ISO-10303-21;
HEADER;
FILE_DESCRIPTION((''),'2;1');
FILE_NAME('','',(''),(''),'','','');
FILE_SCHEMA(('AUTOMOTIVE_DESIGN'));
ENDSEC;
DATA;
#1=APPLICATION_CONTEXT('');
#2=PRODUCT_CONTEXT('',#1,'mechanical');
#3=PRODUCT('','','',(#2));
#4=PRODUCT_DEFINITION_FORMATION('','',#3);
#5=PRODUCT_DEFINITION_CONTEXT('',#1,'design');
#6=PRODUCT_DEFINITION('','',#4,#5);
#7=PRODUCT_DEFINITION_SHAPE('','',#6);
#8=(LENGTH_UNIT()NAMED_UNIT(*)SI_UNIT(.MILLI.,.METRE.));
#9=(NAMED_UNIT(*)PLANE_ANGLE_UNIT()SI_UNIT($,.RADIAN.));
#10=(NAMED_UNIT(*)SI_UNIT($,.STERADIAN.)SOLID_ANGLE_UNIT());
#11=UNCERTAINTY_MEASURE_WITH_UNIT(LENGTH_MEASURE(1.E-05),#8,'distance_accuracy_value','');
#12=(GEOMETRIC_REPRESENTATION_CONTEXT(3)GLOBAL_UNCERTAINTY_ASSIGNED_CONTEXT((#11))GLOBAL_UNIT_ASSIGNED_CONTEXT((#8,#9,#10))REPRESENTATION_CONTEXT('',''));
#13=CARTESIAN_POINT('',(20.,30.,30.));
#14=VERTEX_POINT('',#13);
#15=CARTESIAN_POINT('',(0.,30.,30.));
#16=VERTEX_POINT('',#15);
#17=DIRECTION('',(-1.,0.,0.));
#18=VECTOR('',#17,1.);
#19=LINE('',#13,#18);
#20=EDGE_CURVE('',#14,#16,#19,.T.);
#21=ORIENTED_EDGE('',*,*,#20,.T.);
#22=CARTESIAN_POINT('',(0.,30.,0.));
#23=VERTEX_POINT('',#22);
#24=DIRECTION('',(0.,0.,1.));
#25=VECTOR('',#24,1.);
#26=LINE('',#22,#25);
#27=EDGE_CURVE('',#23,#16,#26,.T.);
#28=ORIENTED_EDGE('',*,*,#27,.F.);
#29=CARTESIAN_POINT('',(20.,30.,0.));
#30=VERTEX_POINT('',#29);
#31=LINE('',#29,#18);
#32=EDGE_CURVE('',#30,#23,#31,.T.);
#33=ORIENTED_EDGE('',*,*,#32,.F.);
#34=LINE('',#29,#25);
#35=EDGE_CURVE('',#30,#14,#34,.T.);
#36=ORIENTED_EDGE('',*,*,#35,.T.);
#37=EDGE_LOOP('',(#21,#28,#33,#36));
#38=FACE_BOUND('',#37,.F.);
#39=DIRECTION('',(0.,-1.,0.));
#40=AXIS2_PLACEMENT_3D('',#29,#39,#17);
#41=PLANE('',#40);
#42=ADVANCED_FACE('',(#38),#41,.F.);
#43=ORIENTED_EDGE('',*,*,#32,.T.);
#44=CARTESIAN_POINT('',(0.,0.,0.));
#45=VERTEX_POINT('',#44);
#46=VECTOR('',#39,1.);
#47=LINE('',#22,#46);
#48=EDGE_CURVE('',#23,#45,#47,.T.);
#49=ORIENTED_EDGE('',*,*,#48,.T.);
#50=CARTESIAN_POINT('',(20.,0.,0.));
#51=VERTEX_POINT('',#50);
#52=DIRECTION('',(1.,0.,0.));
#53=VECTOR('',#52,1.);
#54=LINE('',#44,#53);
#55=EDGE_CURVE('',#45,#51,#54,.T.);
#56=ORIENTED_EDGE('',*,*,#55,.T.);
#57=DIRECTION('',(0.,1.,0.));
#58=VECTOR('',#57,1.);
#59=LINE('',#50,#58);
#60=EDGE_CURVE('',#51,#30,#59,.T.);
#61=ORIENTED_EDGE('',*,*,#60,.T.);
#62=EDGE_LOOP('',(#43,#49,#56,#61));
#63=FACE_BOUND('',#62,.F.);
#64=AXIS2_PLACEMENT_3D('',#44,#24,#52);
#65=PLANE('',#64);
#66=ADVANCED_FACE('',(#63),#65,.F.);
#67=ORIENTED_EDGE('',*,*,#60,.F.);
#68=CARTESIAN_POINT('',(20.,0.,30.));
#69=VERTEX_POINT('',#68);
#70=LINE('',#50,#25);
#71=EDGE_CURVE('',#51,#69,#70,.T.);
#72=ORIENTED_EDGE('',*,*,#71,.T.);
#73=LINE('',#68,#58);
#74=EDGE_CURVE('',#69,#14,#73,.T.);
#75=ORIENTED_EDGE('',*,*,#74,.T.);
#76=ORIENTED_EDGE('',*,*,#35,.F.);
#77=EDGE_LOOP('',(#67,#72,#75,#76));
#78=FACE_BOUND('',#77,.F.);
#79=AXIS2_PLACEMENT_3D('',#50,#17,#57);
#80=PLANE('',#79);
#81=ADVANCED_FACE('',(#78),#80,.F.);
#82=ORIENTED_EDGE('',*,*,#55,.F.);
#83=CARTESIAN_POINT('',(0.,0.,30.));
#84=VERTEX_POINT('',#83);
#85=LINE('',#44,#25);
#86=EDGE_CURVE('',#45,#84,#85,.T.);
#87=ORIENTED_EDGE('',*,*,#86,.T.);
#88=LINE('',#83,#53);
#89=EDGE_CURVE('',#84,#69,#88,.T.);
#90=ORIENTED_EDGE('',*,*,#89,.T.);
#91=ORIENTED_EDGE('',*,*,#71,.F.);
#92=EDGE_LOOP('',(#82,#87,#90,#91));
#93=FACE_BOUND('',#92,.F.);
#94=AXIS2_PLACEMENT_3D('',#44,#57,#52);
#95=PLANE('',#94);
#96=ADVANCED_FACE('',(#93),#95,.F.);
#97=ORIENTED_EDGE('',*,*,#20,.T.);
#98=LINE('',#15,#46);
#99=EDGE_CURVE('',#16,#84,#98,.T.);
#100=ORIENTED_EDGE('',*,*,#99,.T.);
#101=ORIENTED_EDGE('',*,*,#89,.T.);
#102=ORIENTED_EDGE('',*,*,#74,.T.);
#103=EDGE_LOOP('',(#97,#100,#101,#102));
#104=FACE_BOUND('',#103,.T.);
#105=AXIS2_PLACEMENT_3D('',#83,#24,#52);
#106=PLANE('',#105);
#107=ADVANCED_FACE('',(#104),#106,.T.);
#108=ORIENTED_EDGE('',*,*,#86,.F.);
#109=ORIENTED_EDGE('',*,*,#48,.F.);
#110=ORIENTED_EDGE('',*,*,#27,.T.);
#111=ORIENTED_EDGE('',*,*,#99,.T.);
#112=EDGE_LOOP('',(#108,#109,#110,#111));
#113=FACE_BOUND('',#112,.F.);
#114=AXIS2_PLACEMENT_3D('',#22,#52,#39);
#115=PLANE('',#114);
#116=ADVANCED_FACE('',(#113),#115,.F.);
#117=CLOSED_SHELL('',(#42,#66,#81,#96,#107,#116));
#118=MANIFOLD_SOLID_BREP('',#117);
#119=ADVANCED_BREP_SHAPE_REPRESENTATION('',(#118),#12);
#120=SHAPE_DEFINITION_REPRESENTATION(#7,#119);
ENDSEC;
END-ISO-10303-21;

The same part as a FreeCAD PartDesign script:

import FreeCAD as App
import Part
import Sketcher
from FreeCAD import Vector


def add_polygon(sketch, points):
    """Adds a closed chain of lines whose ends are joined by coincident constraints."""
    first, n = sketch.GeometryCount, len(points)
    for a, b in zip(points, points[1:] + points[:1]):
        sketch.addGeometry(Part.LineSegment(App.Vector(*a, 0), App.Vector(*b, 0)), False)
    for i in range(n):
        sketch.addConstraint(Sketcher.Constraint("Coincident", first + i, 2, first + (i + 1) % n, 1))

doc = App.newDocument("Part")
body = doc.addObject("PartDesign::Body", "Body")

# Sketch on XY plane
sketch1 = body.newObject("Sketcher::SketchObject", "Sketch")
sketch1.AttachmentSupport = (doc.getObject("XY_Plane"), [""])
sketch1.MapMode = "FlatFace"
add_polygon(sketch1, [(0, 30), (0, 0), (20, 0), (20, 30)])  # lines 0-3
sketch1.addConstraint(Sketcher.Constraint("Vertical", 0))
sketch1.addConstraint(Sketcher.Constraint("Horizontal", 1))
sketch1.addConstraint(Sketcher.Constraint("Vertical", 2))
sketch1.addConstraint(Sketcher.Constraint("Horizontal", 3))
sketch1.addConstraint(Sketcher.Constraint("Coincident", 0, 2, -1, 1))
sketch1.addConstraint(Sketcher.Constraint("DistanceX", 1, 1, 1, 2, 20.0))
sketch1.addConstraint(Sketcher.Constraint("DistanceY", 0, 2, 0, 1, 30.0))
pad1 = body.newObject("PartDesign::Pad", "Pad")
pad1.Profile = sketch1
pad1.Length = 30

doc.recompute()
